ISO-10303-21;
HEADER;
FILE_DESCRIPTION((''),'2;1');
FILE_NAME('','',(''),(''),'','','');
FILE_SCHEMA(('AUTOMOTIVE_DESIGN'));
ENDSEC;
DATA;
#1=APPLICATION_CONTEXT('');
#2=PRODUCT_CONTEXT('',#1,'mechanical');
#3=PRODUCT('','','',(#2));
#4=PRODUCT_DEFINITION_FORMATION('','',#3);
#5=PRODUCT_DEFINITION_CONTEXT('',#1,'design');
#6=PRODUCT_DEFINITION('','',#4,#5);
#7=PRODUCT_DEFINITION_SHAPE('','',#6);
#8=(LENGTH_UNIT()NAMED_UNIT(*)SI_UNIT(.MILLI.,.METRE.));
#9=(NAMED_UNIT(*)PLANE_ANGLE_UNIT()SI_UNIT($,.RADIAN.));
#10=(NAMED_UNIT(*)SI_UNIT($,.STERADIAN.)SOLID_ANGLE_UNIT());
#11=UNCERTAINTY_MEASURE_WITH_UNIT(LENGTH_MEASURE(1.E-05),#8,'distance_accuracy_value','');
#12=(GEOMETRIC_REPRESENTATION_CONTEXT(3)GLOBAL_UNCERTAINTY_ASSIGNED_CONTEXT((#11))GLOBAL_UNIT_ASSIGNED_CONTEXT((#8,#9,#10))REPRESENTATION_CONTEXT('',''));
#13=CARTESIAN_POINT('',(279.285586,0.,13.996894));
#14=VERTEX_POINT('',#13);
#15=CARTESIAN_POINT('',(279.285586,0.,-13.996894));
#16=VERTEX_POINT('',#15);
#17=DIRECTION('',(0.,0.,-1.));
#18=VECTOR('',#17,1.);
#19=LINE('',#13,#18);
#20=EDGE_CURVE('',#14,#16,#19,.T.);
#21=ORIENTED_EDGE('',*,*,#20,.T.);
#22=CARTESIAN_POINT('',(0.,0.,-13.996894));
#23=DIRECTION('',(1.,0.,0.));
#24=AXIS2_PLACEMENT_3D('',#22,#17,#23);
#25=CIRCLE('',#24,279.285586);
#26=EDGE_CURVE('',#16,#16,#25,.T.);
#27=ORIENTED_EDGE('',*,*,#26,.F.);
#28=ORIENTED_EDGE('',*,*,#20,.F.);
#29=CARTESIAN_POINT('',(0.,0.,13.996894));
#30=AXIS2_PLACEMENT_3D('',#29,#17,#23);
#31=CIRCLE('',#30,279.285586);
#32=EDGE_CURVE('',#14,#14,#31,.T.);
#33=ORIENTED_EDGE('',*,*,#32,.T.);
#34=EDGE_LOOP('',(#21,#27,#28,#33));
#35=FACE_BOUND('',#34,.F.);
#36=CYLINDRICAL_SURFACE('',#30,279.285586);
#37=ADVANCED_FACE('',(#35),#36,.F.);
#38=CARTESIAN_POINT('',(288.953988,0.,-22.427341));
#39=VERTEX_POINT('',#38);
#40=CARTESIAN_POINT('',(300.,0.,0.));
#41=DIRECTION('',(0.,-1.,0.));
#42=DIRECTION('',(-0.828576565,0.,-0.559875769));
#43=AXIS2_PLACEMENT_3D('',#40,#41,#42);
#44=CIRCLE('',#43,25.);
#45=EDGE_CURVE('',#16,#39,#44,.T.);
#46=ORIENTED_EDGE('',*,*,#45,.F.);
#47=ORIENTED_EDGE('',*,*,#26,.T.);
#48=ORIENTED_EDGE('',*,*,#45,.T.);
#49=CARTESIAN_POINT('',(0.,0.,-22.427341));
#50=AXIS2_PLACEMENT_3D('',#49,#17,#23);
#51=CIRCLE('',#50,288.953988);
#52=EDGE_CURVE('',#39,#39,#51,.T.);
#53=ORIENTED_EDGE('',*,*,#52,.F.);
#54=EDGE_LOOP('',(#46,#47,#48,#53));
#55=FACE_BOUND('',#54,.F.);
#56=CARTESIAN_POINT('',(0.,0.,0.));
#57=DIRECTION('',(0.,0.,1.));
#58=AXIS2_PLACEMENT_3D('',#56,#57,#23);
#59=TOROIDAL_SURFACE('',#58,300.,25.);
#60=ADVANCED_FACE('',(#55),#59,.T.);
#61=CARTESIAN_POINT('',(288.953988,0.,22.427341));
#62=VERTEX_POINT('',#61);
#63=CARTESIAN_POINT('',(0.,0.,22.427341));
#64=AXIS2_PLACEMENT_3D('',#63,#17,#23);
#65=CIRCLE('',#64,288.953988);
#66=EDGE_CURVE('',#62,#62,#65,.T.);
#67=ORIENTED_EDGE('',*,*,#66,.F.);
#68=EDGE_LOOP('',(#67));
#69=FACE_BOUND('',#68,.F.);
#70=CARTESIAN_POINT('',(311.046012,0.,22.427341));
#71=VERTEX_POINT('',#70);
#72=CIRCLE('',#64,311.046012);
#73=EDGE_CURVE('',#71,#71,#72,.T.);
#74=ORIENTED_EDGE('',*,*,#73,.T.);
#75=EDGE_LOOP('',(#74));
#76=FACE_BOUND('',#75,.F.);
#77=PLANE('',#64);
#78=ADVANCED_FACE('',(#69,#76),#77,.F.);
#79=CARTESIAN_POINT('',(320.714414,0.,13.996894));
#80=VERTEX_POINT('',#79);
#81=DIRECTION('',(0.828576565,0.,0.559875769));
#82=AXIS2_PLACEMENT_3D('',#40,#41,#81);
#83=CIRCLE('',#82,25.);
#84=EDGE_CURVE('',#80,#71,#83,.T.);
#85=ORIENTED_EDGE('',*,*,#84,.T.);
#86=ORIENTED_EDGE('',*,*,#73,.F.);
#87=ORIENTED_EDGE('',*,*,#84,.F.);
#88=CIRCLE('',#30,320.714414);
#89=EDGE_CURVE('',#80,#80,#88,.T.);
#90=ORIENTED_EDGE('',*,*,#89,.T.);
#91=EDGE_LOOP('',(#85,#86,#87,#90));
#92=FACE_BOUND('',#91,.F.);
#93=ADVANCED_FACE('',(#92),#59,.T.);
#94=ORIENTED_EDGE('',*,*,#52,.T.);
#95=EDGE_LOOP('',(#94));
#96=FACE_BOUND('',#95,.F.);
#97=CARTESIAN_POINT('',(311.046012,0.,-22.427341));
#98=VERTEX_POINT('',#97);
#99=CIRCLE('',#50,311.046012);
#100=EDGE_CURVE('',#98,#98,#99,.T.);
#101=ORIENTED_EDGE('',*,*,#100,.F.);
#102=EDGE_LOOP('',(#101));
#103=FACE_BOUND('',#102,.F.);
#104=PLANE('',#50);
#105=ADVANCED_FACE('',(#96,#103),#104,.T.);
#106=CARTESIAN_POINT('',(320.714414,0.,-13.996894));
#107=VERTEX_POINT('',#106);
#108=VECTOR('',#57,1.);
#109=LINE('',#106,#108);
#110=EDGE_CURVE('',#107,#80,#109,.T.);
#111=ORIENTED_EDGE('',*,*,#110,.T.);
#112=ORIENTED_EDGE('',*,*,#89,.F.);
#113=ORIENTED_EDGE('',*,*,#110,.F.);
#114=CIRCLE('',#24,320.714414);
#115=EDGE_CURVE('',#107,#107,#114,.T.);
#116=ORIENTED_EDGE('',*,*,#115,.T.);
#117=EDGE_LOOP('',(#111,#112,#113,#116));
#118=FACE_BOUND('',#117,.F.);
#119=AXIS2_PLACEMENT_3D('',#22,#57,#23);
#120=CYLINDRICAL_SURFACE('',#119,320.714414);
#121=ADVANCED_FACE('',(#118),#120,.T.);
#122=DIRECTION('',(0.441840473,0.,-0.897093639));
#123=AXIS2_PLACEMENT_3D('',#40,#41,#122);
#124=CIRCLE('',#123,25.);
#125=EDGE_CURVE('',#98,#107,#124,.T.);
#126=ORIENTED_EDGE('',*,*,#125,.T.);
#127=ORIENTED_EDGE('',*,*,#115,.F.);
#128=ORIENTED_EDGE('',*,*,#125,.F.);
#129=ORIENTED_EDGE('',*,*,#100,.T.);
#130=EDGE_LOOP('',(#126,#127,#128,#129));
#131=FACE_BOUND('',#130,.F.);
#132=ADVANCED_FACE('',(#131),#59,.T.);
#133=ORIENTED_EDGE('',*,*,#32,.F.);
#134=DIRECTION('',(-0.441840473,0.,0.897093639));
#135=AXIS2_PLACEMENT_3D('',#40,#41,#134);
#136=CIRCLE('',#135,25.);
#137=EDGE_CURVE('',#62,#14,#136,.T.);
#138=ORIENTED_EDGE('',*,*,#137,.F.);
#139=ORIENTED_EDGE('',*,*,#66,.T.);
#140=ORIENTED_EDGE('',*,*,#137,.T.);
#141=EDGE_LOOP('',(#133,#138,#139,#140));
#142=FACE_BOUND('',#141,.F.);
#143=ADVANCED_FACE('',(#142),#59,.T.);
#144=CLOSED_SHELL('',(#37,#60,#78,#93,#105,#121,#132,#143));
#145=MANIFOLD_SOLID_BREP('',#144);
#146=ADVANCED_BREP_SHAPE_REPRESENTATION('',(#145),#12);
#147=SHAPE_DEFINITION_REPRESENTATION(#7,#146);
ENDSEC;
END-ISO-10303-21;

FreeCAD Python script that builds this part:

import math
import FreeCAD as App
import Part
import Sketcher

doc = App.newDocument("Part")
params = doc.addObject("Spreadsheet::Sheet", "Params")
for row, (alias, value) in enumerate([
    ("sketch1_radius", "25 mm"),
    ("revolution_angle", "360 deg"),
], start=1):
    params.set(f"A{row}", alias)
    params.set(f"B{row}", "=" + value)
    params.setAlias(f"B{row}", alias)

body = doc.addObject("PartDesign::Body", "Body")

# Sketch on XZ plane
sketch1 = body.newObject("Sketcher::SketchObject", "Sketch")
sketch1.AttachmentSupport = (doc.getObject("XZ_Plane"), [""])
sketch1.MapMode = "FlatFace"
sketch1.addGeometry([
    Part.LineSegment(App.Vector(321, -14, 0), App.Vector(321, 14, 0)),  # 0
    Part.ArcOfCircle(Part.Circle(App.Vector(300, 0, 0), App.Vector(0, 0, 1), 25), math.radians(34), math.radians(64)),  # 1
    Part.LineSegment(App.Vector(311, 22, 0), App.Vector(289, 22, 0)),  # 2
    Part.ArcOfCircle(Part.Circle(App.Vector(300, 0, 0), App.Vector(0, 0, 1), 25), math.radians(116), math.radians(146)),  # 3
    Part.LineSegment(App.Vector(279, 14, 0), App.Vector(279, -14, 0)),  # 4
    Part.ArcOfCircle(Part.Circle(App.Vector(300, 0, 0), App.Vector(0, 0, 1), 25), math.radians(-146), math.radians(-116)),  # 5
    Part.LineSegment(App.Vector(289, -22, 0), App.Vector(311, -22, 0)),  # 6
    Part.ArcOfCircle(Part.Circle(App.Vector(300, 0, 0), App.Vector(0, 0, 1), 25), math.radians(-64), math.radians(-34)),  # 7
], False)
sketch1.addConstraint([
    Sketcher.Constraint("Coincident", 0, 2, 1, 1),
    Sketcher.Constraint("Coincident", 1, 2, 2, 1),
    Sketcher.Constraint("Coincident", 2, 2, 3, 1),
    Sketcher.Constraint("Coincident", 3, 2, 4, 1),
    Sketcher.Constraint("Coincident", 4, 2, 5, 1),
    Sketcher.Constraint("Coincident", 5, 2, 6, 1),
    Sketcher.Constraint("Coincident", 6, 2, 7, 1),
    Sketcher.Constraint("Coincident", 7, 2, 0, 1),
    Sketcher.Constraint("Vertical", 0),
    Sketcher.Constraint("Horizontal", 2),
    Sketcher.Constraint("Vertical", 4),
    Sketcher.Constraint("Horizontal", 6),
    Sketcher.Constraint("Coincident", 3, 3, 1, 3),
    Sketcher.Constraint("Coincident", 5, 3, 1, 3),
    Sketcher.Constraint("Coincident", 7, 3, 1, 3),
    Sketcher.Constraint("Equal", 1, 3),
    Sketcher.Constraint("Equal", 3, 5),
    Sketcher.Constraint("Equal", 5, 7),
    Sketcher.Constraint("Symmetric", 2, 2, 5, 2, -1),
    Sketcher.Constraint("Horizontal", 0, 2, 3, 2),
    Sketcher.Constraint("Radius", 1, 25.0),
    Sketcher.Constraint("DistanceX", -1, 1, 1, 3, 300.0),
    Sketcher.Constraint("DistanceY", 0, 1, 0, 2, 27.993788),
    Sketcher.Constraint("DistanceX", 2, 2, 2, 1, 22.092024),
])
sketch1.setExpression("Constraints[20]", "Params.sketch1_radius")
revolution = body.newObject("PartDesign::Revolution", "Revolution")
revolution.Profile = sketch1
revolution.ReferenceAxis = (sketch1, ["V_Axis"])
revolution.setExpression("Angle", "Params.revolution_angle")

doc.recompute()
